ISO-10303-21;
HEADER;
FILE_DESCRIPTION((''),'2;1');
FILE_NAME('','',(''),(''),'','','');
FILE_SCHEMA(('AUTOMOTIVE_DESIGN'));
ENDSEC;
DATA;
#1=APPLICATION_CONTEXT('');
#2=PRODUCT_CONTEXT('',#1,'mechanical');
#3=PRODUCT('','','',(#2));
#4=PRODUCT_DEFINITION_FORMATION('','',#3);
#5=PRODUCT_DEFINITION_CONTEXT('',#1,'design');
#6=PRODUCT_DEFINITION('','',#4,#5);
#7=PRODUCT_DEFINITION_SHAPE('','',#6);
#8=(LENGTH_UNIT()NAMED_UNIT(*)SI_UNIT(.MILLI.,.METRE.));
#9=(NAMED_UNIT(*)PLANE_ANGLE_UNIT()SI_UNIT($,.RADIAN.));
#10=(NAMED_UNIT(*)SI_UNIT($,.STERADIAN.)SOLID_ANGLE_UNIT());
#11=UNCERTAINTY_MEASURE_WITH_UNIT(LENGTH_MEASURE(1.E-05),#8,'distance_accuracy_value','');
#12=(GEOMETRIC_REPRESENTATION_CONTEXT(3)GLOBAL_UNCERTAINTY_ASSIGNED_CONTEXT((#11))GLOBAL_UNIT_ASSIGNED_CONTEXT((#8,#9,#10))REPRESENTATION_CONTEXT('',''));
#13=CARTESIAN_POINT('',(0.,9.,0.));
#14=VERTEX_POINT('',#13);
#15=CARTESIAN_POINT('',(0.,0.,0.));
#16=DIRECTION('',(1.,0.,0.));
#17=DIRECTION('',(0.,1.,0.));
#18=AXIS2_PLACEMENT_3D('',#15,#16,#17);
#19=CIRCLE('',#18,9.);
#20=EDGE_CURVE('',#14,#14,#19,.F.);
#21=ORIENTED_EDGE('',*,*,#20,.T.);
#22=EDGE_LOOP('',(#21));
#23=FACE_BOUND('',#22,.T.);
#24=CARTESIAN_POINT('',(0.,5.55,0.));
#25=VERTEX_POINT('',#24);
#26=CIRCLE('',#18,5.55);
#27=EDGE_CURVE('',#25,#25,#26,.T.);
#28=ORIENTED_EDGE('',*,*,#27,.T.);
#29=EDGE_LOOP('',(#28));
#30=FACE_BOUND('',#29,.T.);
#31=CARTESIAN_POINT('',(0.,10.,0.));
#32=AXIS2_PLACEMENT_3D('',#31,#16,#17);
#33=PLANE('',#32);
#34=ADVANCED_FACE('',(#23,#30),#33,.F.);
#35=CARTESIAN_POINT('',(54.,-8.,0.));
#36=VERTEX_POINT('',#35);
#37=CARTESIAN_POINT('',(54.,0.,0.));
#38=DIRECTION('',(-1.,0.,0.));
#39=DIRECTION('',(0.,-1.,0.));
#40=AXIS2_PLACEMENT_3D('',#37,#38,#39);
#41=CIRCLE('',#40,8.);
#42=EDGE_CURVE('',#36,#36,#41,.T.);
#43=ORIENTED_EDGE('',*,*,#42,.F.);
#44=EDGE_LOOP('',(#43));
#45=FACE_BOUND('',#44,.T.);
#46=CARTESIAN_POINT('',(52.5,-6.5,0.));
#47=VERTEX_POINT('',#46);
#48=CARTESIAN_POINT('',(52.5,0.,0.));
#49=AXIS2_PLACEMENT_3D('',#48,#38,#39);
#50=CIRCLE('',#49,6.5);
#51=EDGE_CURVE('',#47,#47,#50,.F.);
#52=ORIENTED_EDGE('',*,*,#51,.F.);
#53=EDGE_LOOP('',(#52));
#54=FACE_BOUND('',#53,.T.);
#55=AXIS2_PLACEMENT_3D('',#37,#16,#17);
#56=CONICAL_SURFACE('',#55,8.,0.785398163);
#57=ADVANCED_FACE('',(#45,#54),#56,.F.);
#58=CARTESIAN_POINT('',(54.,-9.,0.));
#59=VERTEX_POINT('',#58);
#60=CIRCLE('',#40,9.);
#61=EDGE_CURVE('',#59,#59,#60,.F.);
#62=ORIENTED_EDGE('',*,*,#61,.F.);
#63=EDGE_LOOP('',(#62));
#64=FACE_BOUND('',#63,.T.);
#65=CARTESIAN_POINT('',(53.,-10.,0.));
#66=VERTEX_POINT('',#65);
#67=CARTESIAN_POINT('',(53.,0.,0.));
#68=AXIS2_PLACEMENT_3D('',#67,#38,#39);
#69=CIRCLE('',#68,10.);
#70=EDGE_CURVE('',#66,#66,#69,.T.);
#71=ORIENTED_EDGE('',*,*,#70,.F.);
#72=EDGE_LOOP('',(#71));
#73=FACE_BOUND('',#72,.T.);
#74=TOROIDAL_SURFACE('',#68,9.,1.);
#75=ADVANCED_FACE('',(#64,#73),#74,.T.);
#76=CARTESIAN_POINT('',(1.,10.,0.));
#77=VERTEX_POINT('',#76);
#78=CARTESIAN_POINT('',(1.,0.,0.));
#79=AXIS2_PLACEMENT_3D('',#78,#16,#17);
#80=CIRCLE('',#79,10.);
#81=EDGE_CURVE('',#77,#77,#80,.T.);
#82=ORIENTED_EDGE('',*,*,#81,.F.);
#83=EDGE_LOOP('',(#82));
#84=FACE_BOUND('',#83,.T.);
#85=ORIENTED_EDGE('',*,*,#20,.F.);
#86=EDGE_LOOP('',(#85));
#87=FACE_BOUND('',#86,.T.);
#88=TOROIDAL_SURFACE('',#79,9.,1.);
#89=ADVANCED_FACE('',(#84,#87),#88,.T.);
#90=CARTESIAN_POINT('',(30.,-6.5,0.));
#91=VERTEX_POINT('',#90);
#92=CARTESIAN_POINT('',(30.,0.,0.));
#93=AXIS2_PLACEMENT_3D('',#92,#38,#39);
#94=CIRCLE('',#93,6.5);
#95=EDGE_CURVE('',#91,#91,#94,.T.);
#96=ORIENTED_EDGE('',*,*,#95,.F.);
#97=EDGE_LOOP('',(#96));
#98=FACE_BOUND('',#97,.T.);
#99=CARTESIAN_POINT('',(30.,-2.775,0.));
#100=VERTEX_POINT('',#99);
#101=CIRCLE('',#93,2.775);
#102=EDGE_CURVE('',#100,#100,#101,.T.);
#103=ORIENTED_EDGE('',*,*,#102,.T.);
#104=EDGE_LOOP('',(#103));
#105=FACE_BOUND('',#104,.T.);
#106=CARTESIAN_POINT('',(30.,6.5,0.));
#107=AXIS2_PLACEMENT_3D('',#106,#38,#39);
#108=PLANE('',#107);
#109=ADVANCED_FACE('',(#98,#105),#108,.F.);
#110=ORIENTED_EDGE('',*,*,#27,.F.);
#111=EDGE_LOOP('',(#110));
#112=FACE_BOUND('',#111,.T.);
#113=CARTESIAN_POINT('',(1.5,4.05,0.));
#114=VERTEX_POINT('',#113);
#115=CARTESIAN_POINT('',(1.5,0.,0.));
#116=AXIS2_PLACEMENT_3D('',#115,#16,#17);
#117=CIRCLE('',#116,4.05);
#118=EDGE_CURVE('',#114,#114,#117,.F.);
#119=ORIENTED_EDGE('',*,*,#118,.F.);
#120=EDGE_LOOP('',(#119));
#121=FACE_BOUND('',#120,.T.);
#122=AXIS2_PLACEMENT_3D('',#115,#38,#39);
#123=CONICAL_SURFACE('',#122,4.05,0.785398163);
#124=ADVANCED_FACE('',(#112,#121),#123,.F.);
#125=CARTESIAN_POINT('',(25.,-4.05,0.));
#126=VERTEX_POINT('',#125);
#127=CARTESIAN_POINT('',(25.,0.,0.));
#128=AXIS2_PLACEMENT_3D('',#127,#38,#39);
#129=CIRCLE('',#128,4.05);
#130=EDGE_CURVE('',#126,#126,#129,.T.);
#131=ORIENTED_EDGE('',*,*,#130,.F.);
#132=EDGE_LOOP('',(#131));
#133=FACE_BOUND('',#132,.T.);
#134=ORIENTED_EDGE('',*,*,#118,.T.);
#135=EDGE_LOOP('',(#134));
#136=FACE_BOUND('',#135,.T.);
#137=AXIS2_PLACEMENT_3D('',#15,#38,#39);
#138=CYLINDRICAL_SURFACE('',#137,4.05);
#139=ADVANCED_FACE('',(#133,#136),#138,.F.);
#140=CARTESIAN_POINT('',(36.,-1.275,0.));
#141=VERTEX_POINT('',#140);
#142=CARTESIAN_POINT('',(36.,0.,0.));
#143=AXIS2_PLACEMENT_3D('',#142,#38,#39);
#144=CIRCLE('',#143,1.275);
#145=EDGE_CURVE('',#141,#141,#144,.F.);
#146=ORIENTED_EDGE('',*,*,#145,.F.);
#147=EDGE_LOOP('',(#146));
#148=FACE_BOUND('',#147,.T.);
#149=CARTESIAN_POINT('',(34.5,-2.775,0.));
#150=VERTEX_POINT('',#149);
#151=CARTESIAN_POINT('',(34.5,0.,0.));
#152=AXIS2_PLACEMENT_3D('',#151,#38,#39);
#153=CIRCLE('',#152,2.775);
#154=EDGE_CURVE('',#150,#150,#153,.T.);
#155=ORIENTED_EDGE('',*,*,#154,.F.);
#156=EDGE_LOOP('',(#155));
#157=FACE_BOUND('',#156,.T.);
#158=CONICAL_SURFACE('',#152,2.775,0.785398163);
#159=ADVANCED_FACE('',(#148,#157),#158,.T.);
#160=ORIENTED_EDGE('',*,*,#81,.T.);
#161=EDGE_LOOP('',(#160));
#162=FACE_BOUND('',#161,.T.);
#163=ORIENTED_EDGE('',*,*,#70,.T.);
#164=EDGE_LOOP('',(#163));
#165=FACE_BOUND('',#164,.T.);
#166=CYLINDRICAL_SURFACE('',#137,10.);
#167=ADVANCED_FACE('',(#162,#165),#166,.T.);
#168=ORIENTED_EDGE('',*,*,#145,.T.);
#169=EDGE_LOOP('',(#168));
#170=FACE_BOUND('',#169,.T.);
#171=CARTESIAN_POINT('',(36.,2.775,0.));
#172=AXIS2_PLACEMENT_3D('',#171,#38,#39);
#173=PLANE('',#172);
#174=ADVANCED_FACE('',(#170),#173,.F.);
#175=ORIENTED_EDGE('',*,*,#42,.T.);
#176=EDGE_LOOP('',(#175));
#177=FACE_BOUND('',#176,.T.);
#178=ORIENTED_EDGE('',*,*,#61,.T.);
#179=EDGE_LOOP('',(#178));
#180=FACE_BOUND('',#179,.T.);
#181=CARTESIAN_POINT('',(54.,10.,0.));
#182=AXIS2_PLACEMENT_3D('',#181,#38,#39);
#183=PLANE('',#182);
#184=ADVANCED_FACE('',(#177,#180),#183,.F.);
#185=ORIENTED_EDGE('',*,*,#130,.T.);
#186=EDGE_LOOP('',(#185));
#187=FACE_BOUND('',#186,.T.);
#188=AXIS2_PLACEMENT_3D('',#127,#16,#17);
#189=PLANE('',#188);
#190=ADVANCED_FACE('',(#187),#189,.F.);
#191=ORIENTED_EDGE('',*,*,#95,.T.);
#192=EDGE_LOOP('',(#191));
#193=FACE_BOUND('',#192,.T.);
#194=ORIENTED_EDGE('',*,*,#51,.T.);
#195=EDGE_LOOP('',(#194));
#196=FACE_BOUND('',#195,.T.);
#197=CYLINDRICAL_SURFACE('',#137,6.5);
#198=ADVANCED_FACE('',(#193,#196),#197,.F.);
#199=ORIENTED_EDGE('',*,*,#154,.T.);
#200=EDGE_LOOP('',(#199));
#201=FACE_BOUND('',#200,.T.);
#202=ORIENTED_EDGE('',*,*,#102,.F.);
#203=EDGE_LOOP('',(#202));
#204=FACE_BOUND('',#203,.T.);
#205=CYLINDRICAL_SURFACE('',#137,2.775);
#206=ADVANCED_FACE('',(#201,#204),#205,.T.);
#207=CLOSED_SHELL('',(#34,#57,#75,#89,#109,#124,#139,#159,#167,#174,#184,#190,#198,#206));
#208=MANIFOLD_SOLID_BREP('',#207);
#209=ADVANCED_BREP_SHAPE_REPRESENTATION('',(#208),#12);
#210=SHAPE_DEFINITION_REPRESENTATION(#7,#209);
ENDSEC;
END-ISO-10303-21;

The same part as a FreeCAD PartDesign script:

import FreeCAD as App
import Part
import Sketcher
Q = App.Units.Quantity


def edges_at(feature, points):
    """Names of the edges that pass closest to the given points."""
    edges = feature.Shape.Edges
    near = lambda p: min(range(len(edges)), key=lambda i: edges[i].distToShape(Part.Vertex(*p))[0])
    return sorted({f"Edge{near(p) + 1}" for p in points})


def add_polygon(sketch, points):
    """Adds a closed chain of lines whose ends are joined by coincident constraints."""
    first, n = sketch.GeometryCount, len(points)
    for a, b in zip(points, points[1:] + points[:1]):
        sketch.addGeometry(Part.LineSegment(App.Vector(*a, 0), App.Vector(*b, 0)), False)
    for i in range(n):
        sketch.addConstraint(Sketcher.Constraint("Coincident", first + i, 2, first + (i + 1) % n, 1))

doc = App.newDocument("Part")
params = doc.addObject("Spreadsheet::Sheet", "Params")
for row, (alias, value) in enumerate([
    ("sketch1_width", "25 mm"),
    ("sketch1_width2", "11 mm"),
    ("sketch1_width3", "6 mm"),
    ("sketch1_width4", "24 mm"),
    ("sketch1_height", "3.5 mm"),
    ("revolution_angle", "360 deg"),
    ("chamfer_size", "1.5 mm"),
    ("fillet_radius", "1 mm"),
], start=1):
    params.set(f"A{row}", alias)
    params.set(f"B{row}", "=" + value)
    params.setAlias(f"B{row}", alias)

body = doc.addObject("PartDesign::Body", "Body")

# Sketch on XY plane
sketch1 = doc.addObject("Sketcher::SketchObject", "Sketch")
body.addObject(sketch1)
sketch1.AttachmentSupport = (doc.XY_Plane, [""])
sketch1.MapMode = "FlatFace"
add_polygon(sketch1, [(0, 4.05), (25, 4.05), (25, 0), (36, 0), (36, 2.775), (30, 2.775), (30, 6.5), (54, 6.5), (54, 10), (0, 10)])  # lines 0-9
sketch1.addConstraint(Sketcher.Constraint("Horizontal", 0))
sketch1.addConstraint(Sketcher.Constraint("Vertical", 1))
sketch1.addConstraint(Sketcher.Constraint("Horizontal", 2))
sketch1.addConstraint(Sketcher.Constraint("Vertical", 3))
sketch1.addConstraint(Sketcher.Constraint("Horizontal", 4))
sketch1.addConstraint(Sketcher.Constraint("Vertical", 5))
sketch1.addConstraint(Sketcher.Constraint("Horizontal", 6))
sketch1.addConstraint(Sketcher.Constraint("Vertical", 7))
sketch1.addConstraint(Sketcher.Constraint("Horizontal", 8))
sketch1.addConstraint(Sketcher.Constraint("Vertical", 9))
sketch1.addConstraint(Sketcher.Constraint("PointOnObject", 1, 2, -1))
sketch1.addConstraint(Sketcher.Constraint("PointOnObject", 8, 2, -2))
sketch1.addConstraint(Sketcher.Constraint("DistanceX", 0, 1, 0, 2, Q("25 mm")))
sketch1.addConstraint(Sketcher.Constraint("DistanceX", 2, 1, 2, 2, Q("11 mm")))
sketch1.addConstraint(Sketcher.Constraint("DistanceX", 4, 2, 4, 1, Q("6 mm")))
sketch1.addConstraint(Sketcher.Constraint("DistanceX", 6, 1, 6, 2, Q("24 mm")))
sketch1.addConstraint(Sketcher.Constraint("DistanceY", 7, 1, 7, 2, Q("3.5 mm")))
sketch1.addConstraint(Sketcher.Constraint("DistanceY", -1, 1, 7, 2, Q("10 mm")))
sketch1.addConstraint(Sketcher.Constraint("DistanceY", 1, 2, 1, 1, Q("4.05 mm")))
sketch1.addConstraint(Sketcher.Constraint("DistanceY", 3, 1, 3, 2, Q("2.775 mm")))
sketch1.setExpression("Constraints[22]", "Params.sketch1_width")
sketch1.setExpression("Constraints[23]", "Params.sketch1_width2")
sketch1.setExpression("Constraints[24]", "Params.sketch1_width3")
sketch1.setExpression("Constraints[25]", "Params.sketch1_width4")
sketch1.setExpression("Constraints[26]", "Params.sketch1_height")
revolution = doc.addObject("PartDesign::Revolution", "Revolution")
body.addObject(revolution)
revolution.Profile = sketch1
revolution.ReferenceAxis = (sketch1, ["H_Axis"])
revolution.setExpression("Angle", "Params.revolution_angle")
doc.recompute()

chamfer = doc.addObject("PartDesign::Chamfer", "Chamfer")
body.addObject(chamfer)
chamfer.Base = (revolution, edges_at(revolution, [(0, 4.05, 0), (36, 2.775, 0), (54, 6.5, 0)]))
chamfer.setExpression("Size", "Params.chamfer_size")
doc.recompute()

fillet = doc.addObject("PartDesign::Fillet", "Fillet")
body.addObject(fillet)
fillet.Base = (chamfer, edges_at(chamfer, [(54, 10, 0), (0, 10, 0)]))
fillet.setExpression("Radius", "Params.fillet_radius")

doc.recompute()
